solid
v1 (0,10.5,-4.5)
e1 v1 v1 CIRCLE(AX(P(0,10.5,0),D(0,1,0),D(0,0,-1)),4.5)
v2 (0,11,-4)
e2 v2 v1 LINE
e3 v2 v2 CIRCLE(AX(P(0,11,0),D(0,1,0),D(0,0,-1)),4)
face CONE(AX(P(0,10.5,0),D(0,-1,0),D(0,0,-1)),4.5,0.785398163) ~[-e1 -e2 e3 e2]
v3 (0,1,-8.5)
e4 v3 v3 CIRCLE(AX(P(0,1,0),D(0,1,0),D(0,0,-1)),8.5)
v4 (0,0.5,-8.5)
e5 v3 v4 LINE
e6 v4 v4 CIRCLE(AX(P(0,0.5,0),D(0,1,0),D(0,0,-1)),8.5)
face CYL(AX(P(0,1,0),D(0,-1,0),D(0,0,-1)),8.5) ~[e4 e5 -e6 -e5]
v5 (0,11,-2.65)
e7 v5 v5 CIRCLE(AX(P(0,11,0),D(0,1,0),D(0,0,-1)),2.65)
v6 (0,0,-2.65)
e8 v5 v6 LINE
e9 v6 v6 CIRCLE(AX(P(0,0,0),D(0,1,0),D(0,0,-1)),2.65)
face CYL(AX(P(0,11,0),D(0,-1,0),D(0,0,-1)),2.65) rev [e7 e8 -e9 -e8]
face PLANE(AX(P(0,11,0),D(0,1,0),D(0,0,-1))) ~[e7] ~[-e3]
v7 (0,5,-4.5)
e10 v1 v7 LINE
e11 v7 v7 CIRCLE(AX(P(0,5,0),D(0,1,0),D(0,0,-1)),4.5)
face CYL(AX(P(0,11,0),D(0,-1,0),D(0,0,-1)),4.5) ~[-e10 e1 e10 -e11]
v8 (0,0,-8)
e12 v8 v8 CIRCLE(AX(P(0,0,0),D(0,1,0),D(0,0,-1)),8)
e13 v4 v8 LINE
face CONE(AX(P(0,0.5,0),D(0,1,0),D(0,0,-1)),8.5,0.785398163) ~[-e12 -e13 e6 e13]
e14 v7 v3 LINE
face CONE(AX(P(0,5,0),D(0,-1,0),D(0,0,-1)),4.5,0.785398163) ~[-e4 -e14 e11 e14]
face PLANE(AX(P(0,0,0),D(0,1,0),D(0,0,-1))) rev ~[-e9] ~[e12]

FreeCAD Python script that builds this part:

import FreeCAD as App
import Part
import Sketcher
from FreeCAD import Vector
Q = App.Units.Quantity


def edges_at(feature, points):
    """Names of the edges that pass closest to the given points."""
    edges = feature.Shape.Edges
    near = lambda p: min(range(len(edges)), key=lambda i: edges[i].distToShape(Part.Vertex(*p))[0])
    return sorted({f"Edge{near(p) + 1}" for p in points})

doc = App.newDocument("Part")
body = doc.addObject("PartDesign::Body", "Body")

sketch1 = body.newObject("Sketcher::SketchObject", "Sketch")
sketch1.AttachmentSupport = (doc.getObject("YZ_Plane"), [""])
sketch1.MapMode = "FlatFace"
sketch1.addGeometry(Part.LineSegment(Vector(11, -4.5, 0), Vector(11, -2.6, 0)), False)
sketch1.addGeometry(Part.LineSegment(Vector(11, -2.6, 0), Vector(0, -2.6, 0)), False)
sketch1.addGeometry(Part.LineSegment(Vector(0, -2.6, 0), Vector(0, -8.5, 0)), False)
sketch1.addGeometry(Part.LineSegment(Vector(0, -8.5, 0), Vector(1, -8.5, 0)), False)
sketch1.addGeometry(Part.LineSegment(Vector(1, -8.5, 0), Vector(5, -4.5, 0)), False)
sketch1.addGeometry(Part.LineSegment(Vector(5, -4.5, 0), Vector(11, -4.5, 0)), False)
sketch1.addConstraint(Sketcher.Constraint("Coincident", 0, 2, 1, 1))
sketch1.addConstraint(Sketcher.Constraint("Coincident", 1, 2, 2, 1))
sketch1.addConstraint(Sketcher.Constraint("Coincident", 2, 2, 3, 1))
sketch1.addConstraint(Sketcher.Constraint("Coincident", 3, 2, 4, 1))
sketch1.addConstraint(Sketcher.Constraint("Coincident", 4, 2, 5, 1))
sketch1.addConstraint(Sketcher.Constraint("Coincident", 5, 2, 0, 1))
sketch1.addConstraint(Sketcher.Constraint("Vertical", 0))
sketch1.addConstraint(Sketcher.Constraint("Horizontal", 1))
sketch1.addConstraint(Sketcher.Constraint("Vertical", 2))
sketch1.addConstraint(Sketcher.Constraint("Horizontal", 3))
sketch1.addConstraint(Sketcher.Constraint("Horizontal", 5))
sketch1.addConstraint(Sketcher.Constraint("PointOnObject", 1, 2, -2))
sketch1.addConstraint(Sketcher.Constraint("DistanceX", 3, 1, 3, 2, Q("1 mm")))
sketch1.addConstraint(Sketcher.Constraint("DistanceX", 5, 1, 5, 2, Q("6 mm")))
sketch1.addConstraint(Sketcher.Constraint("DistanceX", -1, 1, 4, 2, Q("5 mm")))
sketch1.addConstraint(Sketcher.Constraint("DistanceY", 2, 2, -1, 1, Q("8.5 mm")))
sketch1.addConstraint(Sketcher.Constraint("DistanceY", 4, 2, -1, 1, Q("4.5 mm")))
sketch1.addConstraint(Sketcher.Constraint("DistanceY", 0, 2, -1, 1, Q("2.65 mm")))
revolution = body.newObject("PartDesign::Revolution", "Revolution")
revolution.Profile = sketch1
revolution.ReferenceAxis = (sketch1, ["H_Axis"])
revolution.Angle = 360
doc.recompute()

chamfer = body.newObject("PartDesign::Chamfer", "Chamfer")
chamfer.Base = (revolution, edges_at(revolution, [(0, 11, 4.5), (0, 0, 8.5)]))
chamfer.Size = 0.5

doc.recompute()
